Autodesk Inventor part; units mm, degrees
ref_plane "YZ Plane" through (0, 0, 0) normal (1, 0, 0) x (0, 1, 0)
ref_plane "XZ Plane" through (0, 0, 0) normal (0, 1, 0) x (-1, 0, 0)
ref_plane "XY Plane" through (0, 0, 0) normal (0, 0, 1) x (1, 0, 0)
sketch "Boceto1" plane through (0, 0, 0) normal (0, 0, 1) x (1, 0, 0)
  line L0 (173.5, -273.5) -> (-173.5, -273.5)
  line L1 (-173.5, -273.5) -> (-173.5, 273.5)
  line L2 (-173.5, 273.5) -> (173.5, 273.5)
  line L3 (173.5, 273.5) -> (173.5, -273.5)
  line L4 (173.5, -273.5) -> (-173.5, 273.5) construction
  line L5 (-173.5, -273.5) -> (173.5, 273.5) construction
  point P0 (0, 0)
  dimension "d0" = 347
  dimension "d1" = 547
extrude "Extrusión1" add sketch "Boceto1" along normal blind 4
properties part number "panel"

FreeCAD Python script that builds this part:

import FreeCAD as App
import Part
import Sketcher

doc = App.newDocument("Part")
params = doc.addObject("Spreadsheet::Sheet", "Params")
for row, (alias, value) in enumerate([
    ("sketch1_width", "347 mm"),
    ("sketch1_height", "547 mm"),
    ("pad1_length", "4 mm"),
], start=1):
    params.set(f"A{row}", alias)
    params.set(f"B{row}", "=" + value)
    params.setAlias(f"B{row}", alias)

body = doc.addObject("PartDesign::Body", "Body")

sketch1 = doc.addObject("Sketcher::SketchObject", "Sketch")
body.addObject(sketch1)
sketch1.AttachmentSupport = (doc.XY_Plane, [""])
sketch1.MapMode = "FlatFace"
sketch1.addGeometry(Part.LineSegment(App.Vector(-174, -274, 0), App.Vector(174, -274, 0)), False)
sketch1.addGeometry(Part.LineSegment(App.Vector(174, -274, 0), App.Vector(174, 274, 0)), False)
sketch1.addGeometry(Part.LineSegment(App.Vector(174, 274, 0), App.Vector(-174, 274, 0)), False)
sketch1.addGeometry(Part.LineSegment(App.Vector(-174, 274, 0), App.Vector(-174, -274, 0)), False)
sketch1.addConstraint(Sketcher.Constraint("Coincident", 0, 2, 1, 1))
sketch1.addConstraint(Sketcher.Constraint("Coincident", 1, 2, 2, 1))
sketch1.addConstraint(Sketcher.Constraint("Coincident", 2, 2, 3, 1))
sketch1.addConstraint(Sketcher.Constraint("Coincident", 3, 2, 0, 1))
sketch1.addConstraint(Sketcher.Constraint("Horizontal", 0))
sketch1.addConstraint(Sketcher.Constraint("Vertical", 1))
sketch1.addConstraint(Sketcher.Constraint("Horizontal", 2))
sketch1.addConstraint(Sketcher.Constraint("Vertical", 3))
sketch1.addConstraint(Sketcher.Constraint("Symmetric", 0, 2, 2, 2, -1, 1))
sketch1.addConstraint(Sketcher.Constraint("DistanceX", 0, 1, 0, 2, 347.0))
sketch1.addConstraint(Sketcher.Constraint("DistanceY", 1, 1, 1, 2, 547.0))
sketch1.setExpression("Constraints[9]", "Params.sketch1_width")
sketch1.setExpression("Constraints[10]", "Params.sketch1_height")
pad1 = doc.addObject("PartDesign::Pad", "Pad")
body.addObject(pad1)
pad1.Profile = sketch1
pad1.setExpression("Length", "Params.pad1_length")

doc.recompute()
